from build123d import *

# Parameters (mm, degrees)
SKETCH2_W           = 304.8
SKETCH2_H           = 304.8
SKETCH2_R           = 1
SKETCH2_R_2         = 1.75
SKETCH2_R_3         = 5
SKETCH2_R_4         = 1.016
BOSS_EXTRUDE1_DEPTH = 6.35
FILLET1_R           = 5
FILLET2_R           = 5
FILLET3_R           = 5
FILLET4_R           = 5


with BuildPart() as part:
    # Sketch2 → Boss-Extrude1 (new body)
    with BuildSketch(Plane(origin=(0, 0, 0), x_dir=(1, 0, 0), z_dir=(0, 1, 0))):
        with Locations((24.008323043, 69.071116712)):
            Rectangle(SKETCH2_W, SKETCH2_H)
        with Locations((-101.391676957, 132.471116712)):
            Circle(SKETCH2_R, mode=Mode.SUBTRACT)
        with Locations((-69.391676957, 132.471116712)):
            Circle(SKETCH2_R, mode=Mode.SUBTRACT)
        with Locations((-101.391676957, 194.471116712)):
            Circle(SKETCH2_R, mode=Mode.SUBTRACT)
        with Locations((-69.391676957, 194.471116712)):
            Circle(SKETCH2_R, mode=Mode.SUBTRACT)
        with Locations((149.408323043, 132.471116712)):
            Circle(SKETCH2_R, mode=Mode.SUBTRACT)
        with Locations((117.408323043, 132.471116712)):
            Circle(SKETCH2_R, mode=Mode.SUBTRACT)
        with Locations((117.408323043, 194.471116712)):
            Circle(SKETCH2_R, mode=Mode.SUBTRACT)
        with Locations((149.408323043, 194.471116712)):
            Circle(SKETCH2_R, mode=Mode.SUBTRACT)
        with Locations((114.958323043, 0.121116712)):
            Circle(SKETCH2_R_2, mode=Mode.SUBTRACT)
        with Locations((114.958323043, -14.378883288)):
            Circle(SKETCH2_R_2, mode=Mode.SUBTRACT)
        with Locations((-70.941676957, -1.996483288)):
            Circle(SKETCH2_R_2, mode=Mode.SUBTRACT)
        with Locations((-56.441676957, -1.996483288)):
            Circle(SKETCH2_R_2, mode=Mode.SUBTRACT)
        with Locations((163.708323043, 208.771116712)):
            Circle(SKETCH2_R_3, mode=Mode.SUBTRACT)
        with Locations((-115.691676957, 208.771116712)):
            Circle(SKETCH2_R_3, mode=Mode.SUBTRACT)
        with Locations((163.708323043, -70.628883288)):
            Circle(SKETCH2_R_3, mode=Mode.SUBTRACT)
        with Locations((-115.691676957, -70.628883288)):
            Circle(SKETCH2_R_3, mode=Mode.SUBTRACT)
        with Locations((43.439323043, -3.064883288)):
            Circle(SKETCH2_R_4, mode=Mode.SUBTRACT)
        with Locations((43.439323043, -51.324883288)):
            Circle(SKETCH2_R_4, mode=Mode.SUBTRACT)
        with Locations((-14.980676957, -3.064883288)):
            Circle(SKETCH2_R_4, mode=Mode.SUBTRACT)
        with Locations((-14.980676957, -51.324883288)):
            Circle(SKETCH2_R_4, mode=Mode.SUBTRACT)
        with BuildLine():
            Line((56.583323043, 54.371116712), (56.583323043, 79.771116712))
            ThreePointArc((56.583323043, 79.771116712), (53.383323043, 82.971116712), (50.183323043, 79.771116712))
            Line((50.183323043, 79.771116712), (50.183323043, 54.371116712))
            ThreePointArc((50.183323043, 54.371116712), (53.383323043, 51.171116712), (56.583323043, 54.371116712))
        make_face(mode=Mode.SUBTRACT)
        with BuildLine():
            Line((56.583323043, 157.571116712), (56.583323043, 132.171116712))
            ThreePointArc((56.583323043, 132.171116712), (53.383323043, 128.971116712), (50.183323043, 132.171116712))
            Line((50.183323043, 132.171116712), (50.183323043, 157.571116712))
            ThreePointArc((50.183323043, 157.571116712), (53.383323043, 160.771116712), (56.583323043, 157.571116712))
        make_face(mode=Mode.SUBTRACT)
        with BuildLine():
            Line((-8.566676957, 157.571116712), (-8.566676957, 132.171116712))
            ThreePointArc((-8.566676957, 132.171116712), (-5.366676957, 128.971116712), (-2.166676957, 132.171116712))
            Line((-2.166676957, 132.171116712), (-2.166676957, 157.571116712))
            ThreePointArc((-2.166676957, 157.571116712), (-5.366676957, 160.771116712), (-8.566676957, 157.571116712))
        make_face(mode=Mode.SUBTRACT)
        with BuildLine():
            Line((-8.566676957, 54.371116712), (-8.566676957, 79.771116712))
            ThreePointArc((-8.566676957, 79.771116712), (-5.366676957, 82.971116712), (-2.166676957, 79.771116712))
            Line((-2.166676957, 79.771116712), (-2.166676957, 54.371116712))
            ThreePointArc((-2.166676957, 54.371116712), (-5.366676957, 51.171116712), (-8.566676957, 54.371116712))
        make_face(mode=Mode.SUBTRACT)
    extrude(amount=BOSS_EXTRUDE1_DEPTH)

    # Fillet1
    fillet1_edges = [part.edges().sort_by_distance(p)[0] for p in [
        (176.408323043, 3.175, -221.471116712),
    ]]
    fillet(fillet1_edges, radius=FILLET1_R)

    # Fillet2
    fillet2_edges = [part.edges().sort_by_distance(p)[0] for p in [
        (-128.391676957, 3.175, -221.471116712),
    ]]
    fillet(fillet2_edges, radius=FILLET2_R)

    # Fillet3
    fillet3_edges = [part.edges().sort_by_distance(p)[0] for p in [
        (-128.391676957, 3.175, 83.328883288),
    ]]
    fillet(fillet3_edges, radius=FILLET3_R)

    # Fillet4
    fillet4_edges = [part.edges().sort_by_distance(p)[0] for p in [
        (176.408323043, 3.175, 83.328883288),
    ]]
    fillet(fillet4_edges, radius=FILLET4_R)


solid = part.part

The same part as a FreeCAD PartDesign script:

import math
import FreeCAD as App
import Part
import Sketcher

V = App.Vector
Q = App.Units.Quantity


def edges_at(feature, points):
    """Names of the edges that pass closest to the given points."""
    edges = feature.Shape.Edges
    near = lambda p: min(range(len(edges)), key=lambda i: edges[i].distToShape(Part.Vertex(*p))[0])
    return sorted({f"Edge{near(p) + 1}" for p in points})

doc = App.newDocument("Part")
params = doc.addObject("Spreadsheet::Sheet", "Params")
for row, (alias, value) in enumerate([
    ("sketch1_diameter", "10 mm"),
    ("sketch1_diameter2", "2 mm"),
    ("sketch1_diameter3", "3.5 mm"),
    ("sketch1_radius", "3.2 mm"),
    ("sketch1_width", "304.8 mm"),
    ("pad1_length", "6.35 mm"),
    ("fillet_radius", "5 mm"),
    ("fillet2_radius", "5 mm"),
    ("fillet3_radius", "5 mm"),
    ("fillet4_radius", "5 mm"),
], start=1):
    params.set(f"A{row}", alias)
    params.set(f"B{row}", "=" + value)
    params.setAlias(f"B{row}", alias)

body = doc.addObject("PartDesign::Body", "Body")

# Sketch on XZ plane
sketch1 = body.newObject("Sketcher::SketchObject", "Sketch")
sketch1.AttachmentSupport = (doc.getObject("XZ_Plane"), [""])
sketch1.MapMode = "FlatFace"
sketch1.addGeometry([
    Part.LineSegment(V(-128.4, -221.5, 0), V(-128.4, 83.3, 0)),  # 0
    Part.LineSegment(V(-128.4, 83.3, 0), V(176.4, 83.3, 0)),  # 1
    Part.LineSegment(V(176.4, 83.3, 0), V(176.4, -221.5, 0)),  # 2
    Part.LineSegment(V(176.4, -221.5, 0), V(-128.4, -221.5, 0)),  # 3
    Part.Circle(V(-115.7, 70.6, 0), V(0, 0, 1), 5),  # 4
    Part.Circle(V(-15, 51.3, 0), V(0, 0, 1), 1),  # 5
    Part.Circle(V(-70.9, 2, 0), V(0, 0, 1), 1.8),  # 6
    Part.Circle(V(-56.4, 2, 0), V(0, 0, 1), 1.8),  # 7
    Part.Circle(V(-15, 3.1, 0), V(0, 0, 1), 1),  # 8
    Part.ArcOfCircle(Part.Circle(V(-5.4, -54.4, 0), V(0, 0, 1), 3.2), math.radians(0), math.radians(180)),  # 9
    Part.LineSegment(V(-8.6, -54.4, 0), V(-8.6, -79.8, 0)),  # 10
    Part.ArcOfCircle(Part.Circle(V(-5.4, -79.8, 0), V(0, 0, 1), 3.2), math.radians(180), math.radians(360)),  # 11
    Part.LineSegment(V(-2.2, -79.8, 0), V(-2.2, -54.4, 0)),  # 12
    Part.Circle(V(43.4, 51.3, 0), V(0, 0, 1), 1),  # 13
    Part.Circle(V(163.7, 70.6, 0), V(0, 0, 1), 5),  # 14
    Part.Circle(V(115, 14.4, 0), V(0, 0, 1), 1.8),  # 15
    Part.Circle(V(43.4, 3.1, 0), V(0, 0, 1), 1),  # 16
    Part.LineSegment(V(56.6, -79.8, 0), V(56.6, -54.4, 0)),  # 17
    Part.ArcOfCircle(Part.Circle(V(53.4, -54.4, 0), V(0, 0, 1), 3.2), math.radians(0), math.radians(180)),  # 18
    Part.LineSegment(V(50.2, -54.4, 0), V(50.2, -79.8, 0)),  # 19
    Part.ArcOfCircle(Part.Circle(V(53.4, -79.8, 0), V(0, 0, 1), 3.2), math.radians(180), math.radians(360)),  # 20
    Part.Circle(V(115, -0.1, 0), V(0, 0, 1), 1.8),  # 21
    Part.Circle(V(-101.4, -132.5, 0), V(0, 0, 1), 1),  # 22
    Part.Circle(V(-69.4, -132.5, 0), V(0, 0, 1), 1),  # 23
    Part.Circle(V(-101.4, -194.5, 0), V(0, 0, 1), 1),  # 24
    Part.Circle(V(-115.7, -208.8, 0), V(0, 0, 1), 5),  # 25
    Part.Circle(V(-69.4, -194.5, 0), V(0, 0, 1), 1),  # 26
    Part.LineSegment(V(-8.6, -132.2, 0), V(-8.6, -157.6, 0)),  # 27
    Part.ArcOfCircle(Part.Circle(V(-5.4, -157.6, 0), V(0, 0, 1), 3.2), math.radians(180), math.radians(360)),  # 28
    Part.LineSegment(V(-2.2, -157.6, 0), V(-2.2, -132.2, 0)),  # 29
    Part.ArcOfCircle(Part.Circle(V(-5.4, -132.2, 0), V(0, 0, 1), 3.2), math.radians(0), math.radians(180)),  # 30
    Part.Circle(V(117.4, -132.5, 0), V(0, 0, 1), 1),  # 31
    Part.Circle(V(149.4, -132.5, 0), V(0, 0, 1), 1),  # 32
    Part.ArcOfCircle(Part.Circle(V(53.4, -157.6, 0), V(0, 0, 1), 3.2), math.radians(180), math.radians(360)),  # 33
    Part.LineSegment(V(56.6, -157.6, 0), V(56.6, -132.2, 0)),  # 34
    Part.ArcOfCircle(Part.Circle(V(53.4, -132.2, 0), V(0, 0, 1), 3.2), math.radians(0), math.radians(180)),  # 35
    Part.LineSegment(V(50.2, -132.2, 0), V(50.2, -157.6, 0)),  # 36
    Part.Circle(V(117.4, -194.5, 0), V(0, 0, 1), 1),  # 37
    Part.Circle(V(149.4, -194.5, 0), V(0, 0, 1), 1),  # 38
    Part.Circle(V(163.7, -208.8, 0), V(0, 0, 1), 5),  # 39
], False)
sketch1.addConstraint([
    Sketcher.Constraint("Coincident", 0, 2, 1, 1),
    Sketcher.Constraint("Coincident", 1, 2, 2, 1),
    Sketcher.Constraint("Coincident", 2, 2, 3, 1),
    Sketcher.Constraint("Coincident", 3, 2, 0, 1),
    Sketcher.Constraint("Tangent", 9, 2, 10, 1),
    Sketcher.Constraint("Tangent", 10, 2, 11, 1),
    Sketcher.Constraint("Tangent", 11, 2, 12, 1),
    Sketcher.Constraint("Tangent", 12, 2, 9, 1),
    Sketcher.Constraint("Tangent", 17, 2, 18, 1),
    Sketcher.Constraint("Tangent", 18, 2, 19, 1),
    Sketcher.Constraint("Tangent", 19, 2, 20, 1),
    Sketcher.Constraint("Tangent", 20, 2, 17, 1),
    Sketcher.Constraint("Tangent", 27, 2, 28, 1),
    Sketcher.Constraint("Tangent", 28, 2, 29, 1),
    Sketcher.Constraint("Tangent", 29, 2, 30, 1),
    Sketcher.Constraint("Tangent", 30, 2, 27, 1),
    Sketcher.Constraint("Tangent", 33, 2, 34, 1),
    Sketcher.Constraint("Tangent", 34, 2, 35, 1),
    Sketcher.Constraint("Tangent", 35, 2, 36, 1),
    Sketcher.Constraint("Tangent", 36, 2, 33, 1),
    Sketcher.Constraint("Vertical", 0),
    Sketcher.Constraint("Horizontal", 1),
    Sketcher.Constraint("Vertical", 2),
    Sketcher.Constraint("Horizontal", 3),
    Sketcher.Constraint("Vertical", 10),
    Sketcher.Constraint("Vertical", 12),
    Sketcher.Constraint("Vertical", 17),
    Sketcher.Constraint("Vertical", 19),
    Sketcher.Constraint("Vertical", 27),
    Sketcher.Constraint("Vertical", 29),
    Sketcher.Constraint("Vertical", 34),
    Sketcher.Constraint("Vertical", 36),
    Sketcher.Constraint("Equal", 6, 7),
    Sketcher.Constraint("Equal", 5, 8),
    Sketcher.Constraint("Equal", 8, 13),
    Sketcher.Constraint("Equal", 4, 14),
    Sketcher.Constraint("Equal", 7, 15),
    Sketcher.Constraint("Equal", 13, 16),
    Sketcher.Constraint("Equal", 11, 18),
    Sketcher.Constraint("Equal", 15, 21),
    Sketcher.Constraint("Equal", 22, 23),
    Sketcher.Constraint("Equal", 23, 24),
    Sketcher.Constraint("Equal", 14, 25),
    Sketcher.Constraint("Equal", 24, 26),
    Sketcher.Constraint("Equal", 20, 28),
    Sketcher.Constraint("Equal", 26, 31),
    Sketcher.Constraint("Equal", 31, 32),
    Sketcher.Constraint("Equal", 30, 33),
    Sketcher.Constraint("Equal", 32, 37),
    Sketcher.Constraint("Equal", 37, 38),
    Sketcher.Constraint("Equal", 25, 39),
    Sketcher.Constraint("Horizontal", 6, 3, 7, 3),
    Sketcher.Constraint("Horizontal", 5, 3, 13, 3),
    Sketcher.Constraint("Horizontal", 4, 3, 14, 3),
    Sketcher.Constraint("Horizontal", 8, 3, 16, 3),
    Sketcher.Constraint("Horizontal", 9, 3, 18, 3),
    Sketcher.Constraint("Horizontal", 11, 3, 20, 3),
    Sketcher.Constraint("Horizontal", 22, 3, 23, 3),
    Sketcher.Constraint("Horizontal", 24, 3, 26, 3),
    Sketcher.Constraint("Horizontal", 23, 3, 31, 3),
    Sketcher.Constraint("Horizontal", 31, 3, 32, 3),
    Sketcher.Constraint("Horizontal", 28, 3, 33, 3),
    Sketcher.Constraint("Horizontal", 30, 3, 35, 3),
    Sketcher.Constraint("Horizontal", 26, 3, 37, 3),
    Sketcher.Constraint("Horizontal", 37, 3, 38, 3),
    Sketcher.Constraint("Horizontal", 25, 3, 39, 3),
    Sketcher.Constraint("Vertical", 5, 3, 8, 3),
    Sketcher.Constraint("Vertical", 13, 3, 16, 3),
    Sketcher.Constraint("Vertical", 15, 3, 21, 3),
    Sketcher.Constraint("Vertical", 22, 3, 24, 3),
    Sketcher.Constraint("Vertical", 4, 3, 25, 3),
    Sketcher.Constraint("Vertical", 23, 3, 26, 3),
    Sketcher.Constraint("Vertical", 11, 3, 28, 3),
    Sketcher.Constraint("Vertical", 20, 3, 33, 3),
    Sketcher.Constraint("Vertical", 31, 3, 37, 3),
    Sketcher.Constraint("Vertical", 32, 3, 38, 3),
    Sketcher.Constraint("Vertical", 14, 3, 39, 3),
    Sketcher.Constraint("Equal", 3, 0),
    Sketcher.Constraint("Equal", 19, 27),
    Sketcher.Constraint("Diameter", 4, Q("10 mm")),
    Sketcher.Constraint("Diameter", 22, Q("2 mm")),
    Sketcher.Constraint("Diameter", 6, Q("3.5 mm")),
    Sketcher.Constraint("Radius", 9, Q("3.2 mm")),
    Sketcher.Constraint("Diameter", 5, Q("2.032 mm")),
    Sketcher.Constraint("DistanceX", 1, 1, 1, 2, Q("304.8 mm")),
    Sketcher.Constraint("DistanceY", 10, 2, 10, 1, Q("25.4 mm")),
    Sketcher.Constraint("DistanceY", 9, 3, 4, 3, Q("125 mm")),
    Sketcher.Constraint("DistanceX", 22, 3, 23, 3, Q("32 mm")),
    Sketcher.Constraint("DistanceY", 24, 3, 22, 3, Q("62 mm")),
    Sketcher.Constraint("DistanceY", 25, 3, 11, 3, Q("129 mm")),
    Sketcher.Constraint("DistanceX", 31, 3, 32, 3, Q("32 mm")),
    Sketcher.Constraint("DistanceX", 38, 3, 2, 2, Q("27 mm")),
    Sketcher.Constraint("DistanceY", 2, 2, 38, 3, Q("27 mm")),
    Sketcher.Constraint("DistanceX", 3, 2, 24, 3, Q("27 mm")),
    Sketcher.Constraint("DistanceX", 6, 3, 7, 3, Q("14.5 mm")),
    Sketcher.Constraint("DistanceY", 21, 3, 15, 3, Q("14.5 mm")),
    Sketcher.Constraint("DistanceY", 22, 3, 11, 3, Q("52.7 mm")),
    Sketcher.Constraint("DistanceX", 25, 3, 24, 3, Q("14.3 mm")),
    Sketcher.Constraint("DistanceY", 28, 3, 23, 3, Q("25.1 mm")),
    Sketcher.Constraint("DistanceX", 38, 3, 39, 3, Q("14.3 mm")),
    Sketcher.Constraint("DistanceX", 4, 3, 6, 3, Q("44.75 mm")),
    Sketcher.Constraint("DistanceY", 8, 3, 5, 3, Q("48.26 mm")),
    Sketcher.Constraint("DistanceX", 5, 3, 13, 3, Q("58.42 mm")),
    Sketcher.Constraint("DistanceX", 15, 3, 14, 3, Q("48.75 mm")),
    Sketcher.Constraint("DistanceY", 15, 3, 14, 3, Q("56.25 mm")),
    Sketcher.Constraint("DistanceX", 9, 3, 18, 3, Q("58.75 mm")),
    Sketcher.Constraint("DistanceX", 4, 3, 5, 3, Q("100.711 mm")),
    Sketcher.Constraint("DistanceY", 5, 3, 4, 3, Q("19.304 mm")),
    Sketcher.Constraint("DistanceX", 8, 3, 9, 3, Q("9.614 mm")),
    Sketcher.Constraint("DistanceY", 6, 3, 5, 3, Q("49.3284 mm")),
    Sketcher.Constraint("DistanceX", 4, 3, -1, 1, Q("115.691677 mm")),
    Sketcher.Constraint("DistanceY", -1, 1, 4, 3, Q("70.628883 mm")),
])
sketch1.setExpression("Constraints[79]", "Params.sketch1_diameter")
sketch1.setExpression("Constraints[80]", "Params.sketch1_diameter2")
sketch1.setExpression("Constraints[81]", "Params.sketch1_diameter3")
sketch1.setExpression("Constraints[82]", "Params.sketch1_radius")
sketch1.setExpression("Constraints[84]", "Params.sketch1_width")
pad1 = body.newObject("PartDesign::Pad", "Pad")
pad1.Profile = sketch1
pad1.setExpression("Length", "Params.pad1_length")
pad1.Reversed = True
doc.recompute()

fillet = body.newObject("PartDesign::Fillet", "Fillet")
fillet.Base = (pad1, edges_at(pad1, [(176.408, 3.175, -221.471)]))
fillet.setExpression("Radius", "Params.fillet_radius")
doc.recompute()

fillet2 = body.newObject("PartDesign::Fillet", "Fillet001")
fillet2.Base = (fillet, edges_at(fillet, [(-128.392, 3.175, -221.471)]))
fillet2.setExpression("Radius", "Params.fillet2_radius")
doc.recompute()

fillet3 = body.newObject("PartDesign::Fillet", "Fillet002")
fillet3.Base = (fillet2, edges_at(fillet2, [(-128.392, 3.175, 83.329)]))
fillet3.setExpression("Radius", "Params.fillet3_radius")
doc.recompute()

fillet4 = body.newObject("PartDesign::Fillet", "Fillet003")
fillet4.Base = (fillet3, edges_at(fillet3, [(176.408, 3.175, 83.329)]))
fillet4.setExpression("Radius", "Params.fillet4_radius")

doc.recompute()
